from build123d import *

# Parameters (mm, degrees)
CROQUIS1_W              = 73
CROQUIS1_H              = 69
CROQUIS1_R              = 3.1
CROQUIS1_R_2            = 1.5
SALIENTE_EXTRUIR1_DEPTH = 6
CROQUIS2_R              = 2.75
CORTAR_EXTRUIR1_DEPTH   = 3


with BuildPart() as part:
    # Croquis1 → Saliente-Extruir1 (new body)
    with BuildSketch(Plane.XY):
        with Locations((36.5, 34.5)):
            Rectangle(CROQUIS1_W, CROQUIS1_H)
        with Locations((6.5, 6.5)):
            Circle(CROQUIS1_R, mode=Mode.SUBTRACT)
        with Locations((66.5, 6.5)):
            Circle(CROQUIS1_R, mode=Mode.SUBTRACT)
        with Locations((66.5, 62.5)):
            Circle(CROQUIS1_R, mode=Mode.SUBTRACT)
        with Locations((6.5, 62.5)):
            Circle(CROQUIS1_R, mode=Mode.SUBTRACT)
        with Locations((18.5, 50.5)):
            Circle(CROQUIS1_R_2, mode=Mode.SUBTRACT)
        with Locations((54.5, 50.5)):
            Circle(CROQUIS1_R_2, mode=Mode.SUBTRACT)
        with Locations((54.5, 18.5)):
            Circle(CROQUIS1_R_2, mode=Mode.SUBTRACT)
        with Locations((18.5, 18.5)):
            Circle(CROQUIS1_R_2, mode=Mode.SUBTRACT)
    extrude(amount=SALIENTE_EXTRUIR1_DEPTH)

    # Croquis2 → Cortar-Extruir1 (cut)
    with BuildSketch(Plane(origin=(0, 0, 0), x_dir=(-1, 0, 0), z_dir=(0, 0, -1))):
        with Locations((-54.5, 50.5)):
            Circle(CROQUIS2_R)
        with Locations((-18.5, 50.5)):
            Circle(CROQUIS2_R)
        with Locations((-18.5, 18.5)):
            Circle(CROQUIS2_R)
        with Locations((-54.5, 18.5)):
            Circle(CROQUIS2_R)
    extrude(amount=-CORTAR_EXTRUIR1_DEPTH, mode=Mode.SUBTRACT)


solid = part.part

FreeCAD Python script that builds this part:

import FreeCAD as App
import Part
import Sketcher
from FreeCAD import Vector

doc = App.newDocument("Part")
body = doc.addObject("PartDesign::Body", "Body")

sketch1 = body.newObject("Sketcher::SketchObject", "Sketch")
sketch1.AttachmentSupport = (doc.getObject("XY_Plane"), [""])
sketch1.MapMode = "FlatFace"
sketch1.addGeometry([
    Part.LineSegment(Vector(0, 69, 0), Vector(0, 0, 0)),
    Part.LineSegment(Vector(0, 0, 0), Vector(73, 0, 0)),
    Part.LineSegment(Vector(73, 0, 0), Vector(73, 69, 0)),
    Part.LineSegment(Vector(73, 69, 0), Vector(0, 69, 0)),
    Part.Circle(Vector(6.5, 6.5, 0), Vector(0, 0, 1), 3.1),
    Part.Circle(Vector(18.5, 18.5, 0), Vector(0, 0, 1), 1.5),
    Part.Circle(Vector(66.5, 6.5, 0), Vector(0, 0, 1), 3.1),
    Part.Circle(Vector(54.5, 18.5, 0), Vector(0, 0, 1), 1.5),
    Part.Circle(Vector(18.5, 50.5, 0), Vector(0, 0, 1), 1.5),
    Part.Circle(Vector(6.5, 62.5, 0), Vector(0, 0, 1), 3.1),
    Part.Circle(Vector(54.5, 50.5, 0), Vector(0, 0, 1), 1.5),
    Part.Circle(Vector(66.5, 62.5, 0), Vector(0, 0, 1), 3.1),
], False)
sketch1.addConstraint([
    Sketcher.Constraint("Coincident", 0, 2, 1, 1),
    Sketcher.Constraint("Coincident", 1, 2, 2, 1),
    Sketcher.Constraint("Coincident", 2, 2, 3, 1),
    Sketcher.Constraint("Coincident", 3, 2, 0, 1),
    Sketcher.Constraint("Vertical", 0),
    Sketcher.Constraint("Horizontal", 1),
    Sketcher.Constraint("Vertical", 2),
    Sketcher.Constraint("Horizontal", 3),
    Sketcher.Constraint("Coincident", 0, 2, -1, 1),
    Sketcher.Constraint("Equal", 4, 6),
    Sketcher.Constraint("Equal", 5, 7),
    Sketcher.Constraint("Equal", 7, 8),
    Sketcher.Constraint("Equal", 6, 9),
    Sketcher.Constraint("Equal", 8, 10),
    Sketcher.Constraint("Equal", 9, 11),
    Sketcher.Constraint("Horizontal", 4, 3, 6, 3),
    Sketcher.Constraint("Horizontal", 5, 3, 7, 3),
    Sketcher.Constraint("Horizontal", 8, 3, 10, 3),
    Sketcher.Constraint("Horizontal", 9, 3, 11, 3),
    Sketcher.Constraint("Vertical", 5, 3, 8, 3),
    Sketcher.Constraint("Vertical", 4, 3, 9, 3),
    Sketcher.Constraint("Vertical", 7, 3, 10, 3),
    Sketcher.Constraint("Vertical", 6, 3, 11, 3),
    Sketcher.Constraint("Diameter", 5, 3.0),
    Sketcher.Constraint("Diameter", 4, 6.2),
    Sketcher.Constraint("DistanceX", 1, 1, 1, 2, 73.0),
    Sketcher.Constraint("DistanceY", 0, 2, 0, 1, 69.0),
    Sketcher.Constraint("DistanceX", 4, 3, 5, 3, 12.0),
    Sketcher.Constraint("DistanceY", 4, 3, 5, 3, 12.0),
    Sketcher.Constraint("DistanceX", 5, 3, 6, 3, 48.0),
    Sketcher.Constraint("DistanceX", 7, 3, 6, 3, 12.0),
    Sketcher.Constraint("DistanceY", 5, 3, 8, 3, 32.0),
    Sketcher.Constraint("DistanceY", 8, 3, 9, 3, 12.0),
    Sketcher.Constraint("DistanceX", -1, 1, 4, 3, 6.5),
    Sketcher.Constraint("DistanceY", -1, 1, 4, 3, 6.5),
])
pad1 = body.newObject("PartDesign::Pad", "Pad")
pad1.Profile = sketch1
pad1.Length = 6

sketch2 = body.newObject("Sketcher::SketchObject", "Sketch001")
sketch2.AttachmentSupport = (doc.getObject("XY_Plane"), [""])
sketch2.MapMode = "FlatFace"
sketch2.addGeometry([
    Part.Circle(Vector(54.5, 50.5, 0), Vector(0, 0, 1), 2.8),
    Part.Circle(Vector(18.5, 50.5, 0), Vector(0, 0, 1), 2.8),
    Part.Circle(Vector(18.5, 18.5, 0), Vector(0, 0, 1), 2.8),
    Part.Circle(Vector(54.5, 18.5, 0), Vector(0, 0, 1), 2.8),
], False)
sketch2.addConstraint([
    Sketcher.Constraint("Equal", 0, 1),
    Sketcher.Constraint("Equal", 1, 2),
    Sketcher.Constraint("Equal", 2, 3),
    Sketcher.Constraint("Horizontal", 0, 3, 1, 3),
    Sketcher.Constraint("Horizontal", 2, 3, 3, 3),
    Sketcher.Constraint("Vertical", 1, 3, 2, 3),
    Sketcher.Constraint("Vertical", 0, 3, 3, 3),
    Sketcher.Constraint("Diameter", 0, 5.5),
    Sketcher.Constraint("DistanceX", 1, 3, 0, 3, 36.0),
    Sketcher.Constraint("DistanceY", 2, 3, 1, 3, 32.0),
    Sketcher.Constraint("DistanceX", -1, 1, 0, 3, 54.5),
    Sketcher.Constraint("DistanceY", -1, 1, 0, 3, 50.5),
])
pocket1 = body.newObject("PartDesign::Pocket", "Pocket")
pocket1.Profile = sketch2
pocket1.Length = 3
pocket1.Reversed = True

doc.recompute()
